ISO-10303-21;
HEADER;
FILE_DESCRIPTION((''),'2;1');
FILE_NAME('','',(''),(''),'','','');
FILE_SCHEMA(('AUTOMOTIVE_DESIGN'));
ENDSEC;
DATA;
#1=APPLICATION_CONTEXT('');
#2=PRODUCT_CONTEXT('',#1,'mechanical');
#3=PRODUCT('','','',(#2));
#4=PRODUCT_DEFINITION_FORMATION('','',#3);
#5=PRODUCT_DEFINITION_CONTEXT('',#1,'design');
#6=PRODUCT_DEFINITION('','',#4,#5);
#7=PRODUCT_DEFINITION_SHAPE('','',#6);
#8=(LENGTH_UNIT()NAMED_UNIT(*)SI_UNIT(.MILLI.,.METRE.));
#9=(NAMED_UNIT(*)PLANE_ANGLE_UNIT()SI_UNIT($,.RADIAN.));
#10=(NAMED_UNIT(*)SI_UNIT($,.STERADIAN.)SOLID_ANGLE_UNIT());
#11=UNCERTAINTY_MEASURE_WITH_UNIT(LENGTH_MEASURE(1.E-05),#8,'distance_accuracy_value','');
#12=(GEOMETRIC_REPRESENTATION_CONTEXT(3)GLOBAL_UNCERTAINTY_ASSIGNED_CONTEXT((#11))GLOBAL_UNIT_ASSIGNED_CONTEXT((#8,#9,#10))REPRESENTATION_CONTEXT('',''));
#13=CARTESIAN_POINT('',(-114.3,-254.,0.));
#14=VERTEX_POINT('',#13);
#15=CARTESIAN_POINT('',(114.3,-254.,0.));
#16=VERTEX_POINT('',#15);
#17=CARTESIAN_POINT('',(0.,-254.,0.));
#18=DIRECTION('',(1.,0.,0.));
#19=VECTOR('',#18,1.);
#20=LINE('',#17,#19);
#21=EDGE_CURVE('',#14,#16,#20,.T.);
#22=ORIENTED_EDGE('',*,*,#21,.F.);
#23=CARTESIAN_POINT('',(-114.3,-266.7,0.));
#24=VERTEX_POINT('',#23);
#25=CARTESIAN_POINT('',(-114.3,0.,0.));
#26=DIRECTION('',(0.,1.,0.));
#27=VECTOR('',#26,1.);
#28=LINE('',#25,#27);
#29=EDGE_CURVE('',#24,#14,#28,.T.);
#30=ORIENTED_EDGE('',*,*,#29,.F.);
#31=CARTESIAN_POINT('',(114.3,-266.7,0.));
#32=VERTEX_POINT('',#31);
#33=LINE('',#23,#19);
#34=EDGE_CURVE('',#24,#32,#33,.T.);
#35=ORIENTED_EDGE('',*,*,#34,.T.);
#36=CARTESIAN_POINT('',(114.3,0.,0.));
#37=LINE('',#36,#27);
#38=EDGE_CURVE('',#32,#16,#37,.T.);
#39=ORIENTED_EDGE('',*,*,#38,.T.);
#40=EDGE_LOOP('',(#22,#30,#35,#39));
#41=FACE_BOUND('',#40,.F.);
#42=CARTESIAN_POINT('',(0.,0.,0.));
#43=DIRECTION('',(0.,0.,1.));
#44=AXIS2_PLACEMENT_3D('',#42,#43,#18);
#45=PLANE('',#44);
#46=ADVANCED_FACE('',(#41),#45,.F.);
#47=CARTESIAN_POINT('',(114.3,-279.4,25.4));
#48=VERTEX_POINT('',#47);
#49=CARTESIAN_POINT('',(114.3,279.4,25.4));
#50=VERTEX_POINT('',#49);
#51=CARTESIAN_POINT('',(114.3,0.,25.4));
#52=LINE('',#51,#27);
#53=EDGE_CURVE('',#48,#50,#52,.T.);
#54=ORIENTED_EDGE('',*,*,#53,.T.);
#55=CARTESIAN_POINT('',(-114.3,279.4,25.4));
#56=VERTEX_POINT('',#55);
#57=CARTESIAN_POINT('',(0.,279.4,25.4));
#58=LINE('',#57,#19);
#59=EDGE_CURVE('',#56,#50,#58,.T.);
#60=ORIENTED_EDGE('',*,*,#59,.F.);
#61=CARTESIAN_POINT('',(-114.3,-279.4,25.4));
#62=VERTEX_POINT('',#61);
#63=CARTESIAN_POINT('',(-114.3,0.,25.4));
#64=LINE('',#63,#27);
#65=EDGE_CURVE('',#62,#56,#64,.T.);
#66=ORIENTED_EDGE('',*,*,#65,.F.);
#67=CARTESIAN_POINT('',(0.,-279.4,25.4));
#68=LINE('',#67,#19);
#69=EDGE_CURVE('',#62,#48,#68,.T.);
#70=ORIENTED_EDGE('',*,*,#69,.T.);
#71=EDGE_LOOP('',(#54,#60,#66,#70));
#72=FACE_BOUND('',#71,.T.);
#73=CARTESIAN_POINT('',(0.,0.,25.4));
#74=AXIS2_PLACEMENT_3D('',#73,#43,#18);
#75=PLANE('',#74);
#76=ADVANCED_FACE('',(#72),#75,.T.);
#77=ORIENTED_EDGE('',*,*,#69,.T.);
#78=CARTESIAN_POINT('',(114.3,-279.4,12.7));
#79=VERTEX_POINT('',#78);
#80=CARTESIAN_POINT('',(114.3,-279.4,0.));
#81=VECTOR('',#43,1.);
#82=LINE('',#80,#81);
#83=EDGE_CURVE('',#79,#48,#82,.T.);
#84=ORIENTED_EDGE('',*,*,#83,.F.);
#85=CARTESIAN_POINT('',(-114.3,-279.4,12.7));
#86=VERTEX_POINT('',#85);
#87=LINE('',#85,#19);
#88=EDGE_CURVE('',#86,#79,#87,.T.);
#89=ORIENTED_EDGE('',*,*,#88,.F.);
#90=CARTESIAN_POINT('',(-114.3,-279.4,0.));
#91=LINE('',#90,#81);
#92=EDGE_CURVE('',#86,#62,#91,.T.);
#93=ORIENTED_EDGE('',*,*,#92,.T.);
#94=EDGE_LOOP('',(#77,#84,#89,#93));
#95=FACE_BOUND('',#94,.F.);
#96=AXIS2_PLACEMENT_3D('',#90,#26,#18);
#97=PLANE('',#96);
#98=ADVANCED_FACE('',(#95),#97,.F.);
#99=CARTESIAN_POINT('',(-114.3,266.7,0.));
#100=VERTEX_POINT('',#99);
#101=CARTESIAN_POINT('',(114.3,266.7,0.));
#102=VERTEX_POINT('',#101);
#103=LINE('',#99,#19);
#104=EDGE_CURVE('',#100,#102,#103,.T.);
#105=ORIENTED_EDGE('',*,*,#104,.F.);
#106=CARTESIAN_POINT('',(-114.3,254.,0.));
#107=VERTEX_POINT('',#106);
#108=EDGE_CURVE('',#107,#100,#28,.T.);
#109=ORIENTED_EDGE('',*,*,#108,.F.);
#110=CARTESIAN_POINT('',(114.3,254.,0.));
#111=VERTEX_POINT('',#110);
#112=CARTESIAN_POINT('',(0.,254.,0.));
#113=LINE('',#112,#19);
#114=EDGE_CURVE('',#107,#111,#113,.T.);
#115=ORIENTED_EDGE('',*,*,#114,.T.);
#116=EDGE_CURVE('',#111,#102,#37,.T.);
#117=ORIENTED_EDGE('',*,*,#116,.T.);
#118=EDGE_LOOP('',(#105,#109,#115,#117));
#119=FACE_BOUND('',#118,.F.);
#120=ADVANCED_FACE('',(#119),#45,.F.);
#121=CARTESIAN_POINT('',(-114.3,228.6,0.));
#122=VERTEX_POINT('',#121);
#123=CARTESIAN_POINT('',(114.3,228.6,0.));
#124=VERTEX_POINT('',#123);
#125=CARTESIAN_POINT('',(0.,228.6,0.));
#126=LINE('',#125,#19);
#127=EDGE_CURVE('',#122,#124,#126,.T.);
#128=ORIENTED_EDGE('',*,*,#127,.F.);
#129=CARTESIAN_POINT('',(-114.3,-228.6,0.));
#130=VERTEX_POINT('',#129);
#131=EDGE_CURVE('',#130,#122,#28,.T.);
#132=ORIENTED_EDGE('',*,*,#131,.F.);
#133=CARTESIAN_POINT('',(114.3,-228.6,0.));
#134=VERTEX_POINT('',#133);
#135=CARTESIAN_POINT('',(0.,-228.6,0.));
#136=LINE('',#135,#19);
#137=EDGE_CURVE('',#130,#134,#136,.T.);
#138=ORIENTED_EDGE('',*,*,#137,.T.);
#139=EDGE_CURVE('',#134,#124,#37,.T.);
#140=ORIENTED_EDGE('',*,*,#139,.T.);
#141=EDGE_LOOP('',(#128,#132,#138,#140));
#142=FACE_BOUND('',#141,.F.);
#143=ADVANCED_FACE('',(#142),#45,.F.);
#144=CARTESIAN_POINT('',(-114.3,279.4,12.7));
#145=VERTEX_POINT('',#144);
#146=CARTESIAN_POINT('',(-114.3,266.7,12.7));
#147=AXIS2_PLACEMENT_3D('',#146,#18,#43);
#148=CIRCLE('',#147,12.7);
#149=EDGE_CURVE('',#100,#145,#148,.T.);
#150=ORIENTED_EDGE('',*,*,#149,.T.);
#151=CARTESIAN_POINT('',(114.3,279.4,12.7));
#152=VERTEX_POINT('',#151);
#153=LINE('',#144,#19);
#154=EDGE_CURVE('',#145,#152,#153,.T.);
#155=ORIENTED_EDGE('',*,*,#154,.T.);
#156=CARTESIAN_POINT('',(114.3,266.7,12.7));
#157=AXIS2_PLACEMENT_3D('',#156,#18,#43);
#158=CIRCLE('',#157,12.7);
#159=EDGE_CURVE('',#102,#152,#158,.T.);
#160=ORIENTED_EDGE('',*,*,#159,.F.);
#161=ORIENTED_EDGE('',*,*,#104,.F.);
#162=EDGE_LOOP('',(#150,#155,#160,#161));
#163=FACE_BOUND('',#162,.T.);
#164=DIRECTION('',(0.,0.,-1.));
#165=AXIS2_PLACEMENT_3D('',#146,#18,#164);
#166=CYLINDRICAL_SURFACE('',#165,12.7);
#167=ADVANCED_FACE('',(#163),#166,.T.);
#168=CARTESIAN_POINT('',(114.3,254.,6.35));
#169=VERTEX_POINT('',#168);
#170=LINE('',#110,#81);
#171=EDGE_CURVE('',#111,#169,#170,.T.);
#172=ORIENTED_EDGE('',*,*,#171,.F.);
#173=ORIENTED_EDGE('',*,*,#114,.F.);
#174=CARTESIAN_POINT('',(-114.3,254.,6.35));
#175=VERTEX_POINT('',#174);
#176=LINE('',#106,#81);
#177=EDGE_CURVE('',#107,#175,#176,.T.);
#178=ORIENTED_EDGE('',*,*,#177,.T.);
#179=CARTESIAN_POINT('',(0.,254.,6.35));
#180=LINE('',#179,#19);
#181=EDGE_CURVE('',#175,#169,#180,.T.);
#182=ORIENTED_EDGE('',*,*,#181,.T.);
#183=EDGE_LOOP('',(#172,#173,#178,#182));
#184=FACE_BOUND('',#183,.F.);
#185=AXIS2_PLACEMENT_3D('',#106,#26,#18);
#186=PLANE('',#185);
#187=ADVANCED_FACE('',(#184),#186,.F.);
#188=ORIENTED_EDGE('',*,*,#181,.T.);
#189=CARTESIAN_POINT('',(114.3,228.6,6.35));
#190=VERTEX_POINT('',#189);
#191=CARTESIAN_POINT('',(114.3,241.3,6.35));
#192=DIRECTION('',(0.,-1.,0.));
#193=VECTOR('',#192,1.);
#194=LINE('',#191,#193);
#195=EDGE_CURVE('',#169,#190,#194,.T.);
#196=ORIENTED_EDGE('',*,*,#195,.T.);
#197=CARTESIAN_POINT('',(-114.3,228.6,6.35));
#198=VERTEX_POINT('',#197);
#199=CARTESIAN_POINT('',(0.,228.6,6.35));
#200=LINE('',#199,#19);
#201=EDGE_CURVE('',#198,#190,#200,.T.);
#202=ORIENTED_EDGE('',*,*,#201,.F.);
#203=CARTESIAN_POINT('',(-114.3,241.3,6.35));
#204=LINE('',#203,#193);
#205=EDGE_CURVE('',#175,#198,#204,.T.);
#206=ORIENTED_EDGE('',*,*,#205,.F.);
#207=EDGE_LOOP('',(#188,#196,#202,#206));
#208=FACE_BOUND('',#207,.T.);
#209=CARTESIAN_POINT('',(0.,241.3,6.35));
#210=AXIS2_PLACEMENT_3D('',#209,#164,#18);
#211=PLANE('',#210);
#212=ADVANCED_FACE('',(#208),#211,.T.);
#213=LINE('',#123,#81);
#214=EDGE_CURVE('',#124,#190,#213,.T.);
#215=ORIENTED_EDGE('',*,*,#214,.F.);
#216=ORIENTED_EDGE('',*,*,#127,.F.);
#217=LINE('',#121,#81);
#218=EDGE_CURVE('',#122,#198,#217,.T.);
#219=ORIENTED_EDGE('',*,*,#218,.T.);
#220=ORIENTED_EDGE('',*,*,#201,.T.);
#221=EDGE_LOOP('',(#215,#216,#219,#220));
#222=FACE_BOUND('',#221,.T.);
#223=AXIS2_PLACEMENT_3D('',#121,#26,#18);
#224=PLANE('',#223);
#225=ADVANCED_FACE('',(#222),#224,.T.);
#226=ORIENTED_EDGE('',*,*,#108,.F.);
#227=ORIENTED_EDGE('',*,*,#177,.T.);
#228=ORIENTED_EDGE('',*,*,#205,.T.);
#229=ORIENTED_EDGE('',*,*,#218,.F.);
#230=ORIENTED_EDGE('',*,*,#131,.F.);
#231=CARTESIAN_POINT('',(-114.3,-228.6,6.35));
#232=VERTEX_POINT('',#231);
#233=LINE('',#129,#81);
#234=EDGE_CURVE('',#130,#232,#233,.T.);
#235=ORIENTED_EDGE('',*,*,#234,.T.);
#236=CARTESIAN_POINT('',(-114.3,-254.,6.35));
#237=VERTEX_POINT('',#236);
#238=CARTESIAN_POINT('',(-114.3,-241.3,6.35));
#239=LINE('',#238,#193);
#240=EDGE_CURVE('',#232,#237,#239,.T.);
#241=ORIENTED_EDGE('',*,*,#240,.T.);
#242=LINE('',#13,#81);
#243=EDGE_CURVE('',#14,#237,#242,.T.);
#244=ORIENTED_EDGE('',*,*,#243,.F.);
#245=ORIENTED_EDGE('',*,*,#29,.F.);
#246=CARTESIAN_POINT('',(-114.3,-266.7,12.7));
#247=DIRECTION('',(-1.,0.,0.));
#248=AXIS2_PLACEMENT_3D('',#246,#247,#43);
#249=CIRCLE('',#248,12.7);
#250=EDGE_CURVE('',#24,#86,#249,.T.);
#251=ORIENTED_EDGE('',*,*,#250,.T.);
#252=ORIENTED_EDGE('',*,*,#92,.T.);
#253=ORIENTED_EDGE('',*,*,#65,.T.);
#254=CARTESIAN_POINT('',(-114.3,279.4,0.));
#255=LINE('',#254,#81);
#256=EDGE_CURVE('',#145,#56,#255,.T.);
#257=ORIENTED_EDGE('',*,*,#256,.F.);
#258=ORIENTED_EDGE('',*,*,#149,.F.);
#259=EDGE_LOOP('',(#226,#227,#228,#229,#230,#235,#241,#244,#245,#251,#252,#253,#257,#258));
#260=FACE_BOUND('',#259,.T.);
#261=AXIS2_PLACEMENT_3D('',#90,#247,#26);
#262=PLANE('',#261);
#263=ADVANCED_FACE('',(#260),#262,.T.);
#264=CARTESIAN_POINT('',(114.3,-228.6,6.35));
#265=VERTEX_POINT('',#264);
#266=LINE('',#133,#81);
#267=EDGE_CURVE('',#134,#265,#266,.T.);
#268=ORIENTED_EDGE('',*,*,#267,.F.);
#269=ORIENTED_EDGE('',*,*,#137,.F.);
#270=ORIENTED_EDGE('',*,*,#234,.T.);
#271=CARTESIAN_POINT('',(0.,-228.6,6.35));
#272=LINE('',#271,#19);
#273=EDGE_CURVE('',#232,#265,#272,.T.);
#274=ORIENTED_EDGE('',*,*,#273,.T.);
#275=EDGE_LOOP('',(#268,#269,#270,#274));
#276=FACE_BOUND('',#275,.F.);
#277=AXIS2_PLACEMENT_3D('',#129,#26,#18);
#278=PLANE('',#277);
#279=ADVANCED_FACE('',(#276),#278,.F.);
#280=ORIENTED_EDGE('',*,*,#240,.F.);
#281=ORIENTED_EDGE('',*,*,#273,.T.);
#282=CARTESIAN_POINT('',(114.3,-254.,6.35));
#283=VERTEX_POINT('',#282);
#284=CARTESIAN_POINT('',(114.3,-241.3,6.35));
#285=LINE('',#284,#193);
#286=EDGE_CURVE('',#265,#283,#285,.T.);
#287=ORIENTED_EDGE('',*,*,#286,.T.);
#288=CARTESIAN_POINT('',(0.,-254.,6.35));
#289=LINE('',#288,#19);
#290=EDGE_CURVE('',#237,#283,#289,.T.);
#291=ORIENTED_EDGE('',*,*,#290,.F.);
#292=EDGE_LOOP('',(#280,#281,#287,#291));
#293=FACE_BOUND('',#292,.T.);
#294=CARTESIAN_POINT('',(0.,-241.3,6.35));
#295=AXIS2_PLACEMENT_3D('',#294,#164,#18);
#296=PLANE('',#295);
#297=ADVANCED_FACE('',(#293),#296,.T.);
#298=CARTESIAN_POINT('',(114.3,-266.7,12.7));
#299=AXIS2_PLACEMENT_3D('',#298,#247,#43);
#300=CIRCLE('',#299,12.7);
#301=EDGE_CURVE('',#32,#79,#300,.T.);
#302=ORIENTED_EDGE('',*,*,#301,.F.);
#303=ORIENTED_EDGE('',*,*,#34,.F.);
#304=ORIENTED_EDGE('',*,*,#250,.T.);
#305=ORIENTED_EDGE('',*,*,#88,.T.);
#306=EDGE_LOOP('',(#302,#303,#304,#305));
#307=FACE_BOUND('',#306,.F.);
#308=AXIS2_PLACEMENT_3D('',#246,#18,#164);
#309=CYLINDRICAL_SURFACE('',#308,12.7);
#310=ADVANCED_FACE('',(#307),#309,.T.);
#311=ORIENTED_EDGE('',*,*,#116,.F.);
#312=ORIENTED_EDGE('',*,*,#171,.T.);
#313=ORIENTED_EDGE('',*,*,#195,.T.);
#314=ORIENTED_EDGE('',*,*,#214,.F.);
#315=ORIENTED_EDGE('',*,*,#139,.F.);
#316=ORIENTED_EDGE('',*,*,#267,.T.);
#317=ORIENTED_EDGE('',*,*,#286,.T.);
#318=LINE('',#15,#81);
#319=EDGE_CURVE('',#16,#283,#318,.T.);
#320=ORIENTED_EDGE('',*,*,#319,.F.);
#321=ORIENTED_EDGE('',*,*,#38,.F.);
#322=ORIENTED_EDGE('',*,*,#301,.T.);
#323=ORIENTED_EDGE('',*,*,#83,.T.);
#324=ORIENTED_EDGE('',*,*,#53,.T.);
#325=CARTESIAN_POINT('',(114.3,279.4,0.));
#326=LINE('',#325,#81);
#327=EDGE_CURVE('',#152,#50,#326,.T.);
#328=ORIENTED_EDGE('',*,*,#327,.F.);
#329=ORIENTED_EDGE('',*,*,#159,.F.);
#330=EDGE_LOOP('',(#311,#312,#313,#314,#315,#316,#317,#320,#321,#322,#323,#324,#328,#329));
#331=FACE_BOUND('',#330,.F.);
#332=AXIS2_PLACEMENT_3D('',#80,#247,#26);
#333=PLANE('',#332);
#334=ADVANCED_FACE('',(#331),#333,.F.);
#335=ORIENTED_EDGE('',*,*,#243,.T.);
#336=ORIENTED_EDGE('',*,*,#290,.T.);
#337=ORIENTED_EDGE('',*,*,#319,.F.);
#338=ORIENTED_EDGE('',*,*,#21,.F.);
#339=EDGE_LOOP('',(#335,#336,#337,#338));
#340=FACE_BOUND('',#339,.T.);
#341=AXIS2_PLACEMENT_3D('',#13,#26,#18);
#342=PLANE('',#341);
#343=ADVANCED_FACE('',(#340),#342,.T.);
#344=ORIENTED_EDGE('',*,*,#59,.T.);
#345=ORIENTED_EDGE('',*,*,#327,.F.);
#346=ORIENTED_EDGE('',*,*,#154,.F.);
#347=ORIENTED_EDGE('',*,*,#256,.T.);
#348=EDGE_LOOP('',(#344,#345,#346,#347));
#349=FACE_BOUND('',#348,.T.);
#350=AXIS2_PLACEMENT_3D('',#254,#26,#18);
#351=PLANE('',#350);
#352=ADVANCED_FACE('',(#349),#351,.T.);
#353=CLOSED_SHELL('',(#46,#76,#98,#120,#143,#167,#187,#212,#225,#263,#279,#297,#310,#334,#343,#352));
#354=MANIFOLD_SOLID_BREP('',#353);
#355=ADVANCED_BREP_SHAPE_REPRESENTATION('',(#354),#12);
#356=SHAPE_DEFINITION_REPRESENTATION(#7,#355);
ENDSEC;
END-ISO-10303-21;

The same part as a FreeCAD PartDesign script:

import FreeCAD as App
import Part
import Sketcher
from FreeCAD import Vector
Q = App.Units.Quantity


def edges_at(feature, points):
    """Names of the edges that pass closest to the given points."""
    edges = feature.Shape.Edges
    near = lambda p: min(range(len(edges)), key=lambda i: edges[i].distToShape(Part.Vertex(*p))[0])
    return sorted({f"Edge{near(p) + 1}" for p in points})

doc = App.newDocument("Part")
body = doc.addObject("PartDesign::Body", "Body")

sketch1 = doc.addObject("Sketcher::SketchObject", "Sketch")
body.addObject(sketch1)
sketch1.AttachmentSupport = (doc.XY_Plane, [""])
sketch1.MapMode = "FlatFace"
sketch1.addGeometry(Part.LineSegment(Vector(-114, 279, 0), Vector(-114, -279, 0)), False)
sketch1.addGeometry(Part.LineSegment(Vector(-114, -279, 0), Vector(114, -279, 0)), False)
sketch1.addGeometry(Part.LineSegment(Vector(114, -279, 0), Vector(114, 279, 0)), False)
sketch1.addGeometry(Part.LineSegment(Vector(114, 279, 0), Vector(-114, 279, 0)), False)
sketch1.addConstraint(Sketcher.Constraint("Coincident", 0, 2, 1, 1))
sketch1.addConstraint(Sketcher.Constraint("Coincident", 1, 2, 2, 1))
sketch1.addConstraint(Sketcher.Constraint("Coincident", 2, 2, 3, 1))
sketch1.addConstraint(Sketcher.Constraint("Coincident", 3, 2, 0, 1))
sketch1.addConstraint(Sketcher.Constraint("Vertical", 0))
sketch1.addConstraint(Sketcher.Constraint("Horizontal", 1))
sketch1.addConstraint(Sketcher.Constraint("Vertical", 2))
sketch1.addConstraint(Sketcher.Constraint("Horizontal", 3))
sketch1.addConstraint(Sketcher.Constraint("Symmetric", 0, 2, 2, 2, -1, 1))
sketch1.addConstraint(Sketcher.Constraint("DistanceX", 1, 1, 1, 2, Q("9 in")))
sketch1.addConstraint(Sketcher.Constraint("DistanceY", 0, 2, 0, 1, Q("22 in")))
pad1 = doc.addObject("PartDesign::Pad", "Pad")
body.addObject(pad1)
pad1.Profile = sketch1
pad1.Length = Q("1 in")

sketch2 = doc.addObject("Sketcher::SketchObject", "Sketch001")
body.addObject(sketch2)
sketch2.AttachmentSupport = (doc.XY_Plane, [""])
sketch2.MapMode = "FlatFace"
sketch2.addGeometry(Part.LineSegment(Vector(-114, -254, 0), Vector(-114, -229, 0)), False)
sketch2.addGeometry(Part.LineSegment(Vector(-114, -229, 0), Vector(114, -229, 0)), False)
sketch2.addGeometry(Part.LineSegment(Vector(114, -229, 0), Vector(114, -254, 0)), False)
sketch2.addGeometry(Part.LineSegment(Vector(114, -254, 0), Vector(-114, -254, 0)), False)
sketch2.addConstraint(Sketcher.Constraint("Coincident", 0, 2, 1, 1))
sketch2.addConstraint(Sketcher.Constraint("Coincident", 1, 2, 2, 1))
sketch2.addConstraint(Sketcher.Constraint("Coincident", 2, 2, 3, 1))
sketch2.addConstraint(Sketcher.Constraint("Coincident", 3, 2, 0, 1))
sketch2.addConstraint(Sketcher.Constraint("Vertical", 0))
sketch2.addConstraint(Sketcher.Constraint("Horizontal", 1))
sketch2.addConstraint(Sketcher.Constraint("Vertical", 2))
sketch2.addConstraint(Sketcher.Constraint("Horizontal", 3))
sketch2.addConstraint(Sketcher.Constraint("DistanceX", 1, 1, 1, 2, Q("9 in")))
sketch2.addConstraint(Sketcher.Constraint("DistanceY", 0, 1, 0, 2, Q("1 in")))
sketch2.addConstraint(Sketcher.Constraint("DistanceY", 0, 2, -1, 1, Q("9 in")))
sketch2.addConstraint(Sketcher.Constraint("DistanceX", 0, 2, -1, 1, Q("4.5 in")))
pocket1 = doc.addObject("PartDesign::Pocket", "Pocket")
body.addObject(pocket1)
pocket1.Profile = sketch2
pocket1.Length = Q("0.25 in")
pocket1.Reversed = True

sketch3 = doc.addObject("Sketcher::SketchObject", "Sketch002")
body.addObject(sketch3)
sketch3.AttachmentSupport = (doc.XY_Plane, [""])
sketch3.MapMode = "FlatFace"
sketch3.addGeometry(Part.LineSegment(Vector(-114, 229, 0), Vector(-114, 254, 0)), False)
sketch3.addGeometry(Part.LineSegment(Vector(-114, 254, 0), Vector(114, 254, 0)), False)
sketch3.addGeometry(Part.LineSegment(Vector(114, 254, 0), Vector(114, 229, 0)), False)
sketch3.addGeometry(Part.LineSegment(Vector(114, 229, 0), Vector(-114, 229, 0)), False)
sketch3.addConstraint(Sketcher.Constraint("Coincident", 0, 2, 1, 1))
sketch3.addConstraint(Sketcher.Constraint("Coincident", 1, 2, 2, 1))
sketch3.addConstraint(Sketcher.Constraint("Coincident", 2, 2, 3, 1))
sketch3.addConstraint(Sketcher.Constraint("Coincident", 3, 2, 0, 1))
sketch3.addConstraint(Sketcher.Constraint("Vertical", 0))
sketch3.addConstraint(Sketcher.Constraint("Horizontal", 1))
sketch3.addConstraint(Sketcher.Constraint("Vertical", 2))
sketch3.addConstraint(Sketcher.Constraint("Horizontal", 3))
sketch3.addConstraint(Sketcher.Constraint("DistanceX", 1, 1, 1, 2, Q("9 in")))
sketch3.addConstraint(Sketcher.Constraint("DistanceY", 0, 1, 0, 2, Q("1 in")))
sketch3.addConstraint(Sketcher.Constraint("DistanceY", -1, 1, 0, 2, Q("10 in")))
sketch3.addConstraint(Sketcher.Constraint("DistanceX", 0, 2, -1, 1, Q("4.5 in")))
pocket2 = doc.addObject("PartDesign::Pocket", "Pocket001")
body.addObject(pocket2)
pocket2.Profile = sketch3
pocket2.Length = Q("0.25 in")
pocket2.Reversed = True
doc.recompute()

fillet = doc.addObject("PartDesign::Fillet", "Fillet")
body.addObject(fillet)
fillet.Base = (pocket2, edges_at(pocket2, [(0, -279.4, 0), (0, 279.4, 0)]))
fillet.Radius = Q("0.5 in")

doc.recompute()
